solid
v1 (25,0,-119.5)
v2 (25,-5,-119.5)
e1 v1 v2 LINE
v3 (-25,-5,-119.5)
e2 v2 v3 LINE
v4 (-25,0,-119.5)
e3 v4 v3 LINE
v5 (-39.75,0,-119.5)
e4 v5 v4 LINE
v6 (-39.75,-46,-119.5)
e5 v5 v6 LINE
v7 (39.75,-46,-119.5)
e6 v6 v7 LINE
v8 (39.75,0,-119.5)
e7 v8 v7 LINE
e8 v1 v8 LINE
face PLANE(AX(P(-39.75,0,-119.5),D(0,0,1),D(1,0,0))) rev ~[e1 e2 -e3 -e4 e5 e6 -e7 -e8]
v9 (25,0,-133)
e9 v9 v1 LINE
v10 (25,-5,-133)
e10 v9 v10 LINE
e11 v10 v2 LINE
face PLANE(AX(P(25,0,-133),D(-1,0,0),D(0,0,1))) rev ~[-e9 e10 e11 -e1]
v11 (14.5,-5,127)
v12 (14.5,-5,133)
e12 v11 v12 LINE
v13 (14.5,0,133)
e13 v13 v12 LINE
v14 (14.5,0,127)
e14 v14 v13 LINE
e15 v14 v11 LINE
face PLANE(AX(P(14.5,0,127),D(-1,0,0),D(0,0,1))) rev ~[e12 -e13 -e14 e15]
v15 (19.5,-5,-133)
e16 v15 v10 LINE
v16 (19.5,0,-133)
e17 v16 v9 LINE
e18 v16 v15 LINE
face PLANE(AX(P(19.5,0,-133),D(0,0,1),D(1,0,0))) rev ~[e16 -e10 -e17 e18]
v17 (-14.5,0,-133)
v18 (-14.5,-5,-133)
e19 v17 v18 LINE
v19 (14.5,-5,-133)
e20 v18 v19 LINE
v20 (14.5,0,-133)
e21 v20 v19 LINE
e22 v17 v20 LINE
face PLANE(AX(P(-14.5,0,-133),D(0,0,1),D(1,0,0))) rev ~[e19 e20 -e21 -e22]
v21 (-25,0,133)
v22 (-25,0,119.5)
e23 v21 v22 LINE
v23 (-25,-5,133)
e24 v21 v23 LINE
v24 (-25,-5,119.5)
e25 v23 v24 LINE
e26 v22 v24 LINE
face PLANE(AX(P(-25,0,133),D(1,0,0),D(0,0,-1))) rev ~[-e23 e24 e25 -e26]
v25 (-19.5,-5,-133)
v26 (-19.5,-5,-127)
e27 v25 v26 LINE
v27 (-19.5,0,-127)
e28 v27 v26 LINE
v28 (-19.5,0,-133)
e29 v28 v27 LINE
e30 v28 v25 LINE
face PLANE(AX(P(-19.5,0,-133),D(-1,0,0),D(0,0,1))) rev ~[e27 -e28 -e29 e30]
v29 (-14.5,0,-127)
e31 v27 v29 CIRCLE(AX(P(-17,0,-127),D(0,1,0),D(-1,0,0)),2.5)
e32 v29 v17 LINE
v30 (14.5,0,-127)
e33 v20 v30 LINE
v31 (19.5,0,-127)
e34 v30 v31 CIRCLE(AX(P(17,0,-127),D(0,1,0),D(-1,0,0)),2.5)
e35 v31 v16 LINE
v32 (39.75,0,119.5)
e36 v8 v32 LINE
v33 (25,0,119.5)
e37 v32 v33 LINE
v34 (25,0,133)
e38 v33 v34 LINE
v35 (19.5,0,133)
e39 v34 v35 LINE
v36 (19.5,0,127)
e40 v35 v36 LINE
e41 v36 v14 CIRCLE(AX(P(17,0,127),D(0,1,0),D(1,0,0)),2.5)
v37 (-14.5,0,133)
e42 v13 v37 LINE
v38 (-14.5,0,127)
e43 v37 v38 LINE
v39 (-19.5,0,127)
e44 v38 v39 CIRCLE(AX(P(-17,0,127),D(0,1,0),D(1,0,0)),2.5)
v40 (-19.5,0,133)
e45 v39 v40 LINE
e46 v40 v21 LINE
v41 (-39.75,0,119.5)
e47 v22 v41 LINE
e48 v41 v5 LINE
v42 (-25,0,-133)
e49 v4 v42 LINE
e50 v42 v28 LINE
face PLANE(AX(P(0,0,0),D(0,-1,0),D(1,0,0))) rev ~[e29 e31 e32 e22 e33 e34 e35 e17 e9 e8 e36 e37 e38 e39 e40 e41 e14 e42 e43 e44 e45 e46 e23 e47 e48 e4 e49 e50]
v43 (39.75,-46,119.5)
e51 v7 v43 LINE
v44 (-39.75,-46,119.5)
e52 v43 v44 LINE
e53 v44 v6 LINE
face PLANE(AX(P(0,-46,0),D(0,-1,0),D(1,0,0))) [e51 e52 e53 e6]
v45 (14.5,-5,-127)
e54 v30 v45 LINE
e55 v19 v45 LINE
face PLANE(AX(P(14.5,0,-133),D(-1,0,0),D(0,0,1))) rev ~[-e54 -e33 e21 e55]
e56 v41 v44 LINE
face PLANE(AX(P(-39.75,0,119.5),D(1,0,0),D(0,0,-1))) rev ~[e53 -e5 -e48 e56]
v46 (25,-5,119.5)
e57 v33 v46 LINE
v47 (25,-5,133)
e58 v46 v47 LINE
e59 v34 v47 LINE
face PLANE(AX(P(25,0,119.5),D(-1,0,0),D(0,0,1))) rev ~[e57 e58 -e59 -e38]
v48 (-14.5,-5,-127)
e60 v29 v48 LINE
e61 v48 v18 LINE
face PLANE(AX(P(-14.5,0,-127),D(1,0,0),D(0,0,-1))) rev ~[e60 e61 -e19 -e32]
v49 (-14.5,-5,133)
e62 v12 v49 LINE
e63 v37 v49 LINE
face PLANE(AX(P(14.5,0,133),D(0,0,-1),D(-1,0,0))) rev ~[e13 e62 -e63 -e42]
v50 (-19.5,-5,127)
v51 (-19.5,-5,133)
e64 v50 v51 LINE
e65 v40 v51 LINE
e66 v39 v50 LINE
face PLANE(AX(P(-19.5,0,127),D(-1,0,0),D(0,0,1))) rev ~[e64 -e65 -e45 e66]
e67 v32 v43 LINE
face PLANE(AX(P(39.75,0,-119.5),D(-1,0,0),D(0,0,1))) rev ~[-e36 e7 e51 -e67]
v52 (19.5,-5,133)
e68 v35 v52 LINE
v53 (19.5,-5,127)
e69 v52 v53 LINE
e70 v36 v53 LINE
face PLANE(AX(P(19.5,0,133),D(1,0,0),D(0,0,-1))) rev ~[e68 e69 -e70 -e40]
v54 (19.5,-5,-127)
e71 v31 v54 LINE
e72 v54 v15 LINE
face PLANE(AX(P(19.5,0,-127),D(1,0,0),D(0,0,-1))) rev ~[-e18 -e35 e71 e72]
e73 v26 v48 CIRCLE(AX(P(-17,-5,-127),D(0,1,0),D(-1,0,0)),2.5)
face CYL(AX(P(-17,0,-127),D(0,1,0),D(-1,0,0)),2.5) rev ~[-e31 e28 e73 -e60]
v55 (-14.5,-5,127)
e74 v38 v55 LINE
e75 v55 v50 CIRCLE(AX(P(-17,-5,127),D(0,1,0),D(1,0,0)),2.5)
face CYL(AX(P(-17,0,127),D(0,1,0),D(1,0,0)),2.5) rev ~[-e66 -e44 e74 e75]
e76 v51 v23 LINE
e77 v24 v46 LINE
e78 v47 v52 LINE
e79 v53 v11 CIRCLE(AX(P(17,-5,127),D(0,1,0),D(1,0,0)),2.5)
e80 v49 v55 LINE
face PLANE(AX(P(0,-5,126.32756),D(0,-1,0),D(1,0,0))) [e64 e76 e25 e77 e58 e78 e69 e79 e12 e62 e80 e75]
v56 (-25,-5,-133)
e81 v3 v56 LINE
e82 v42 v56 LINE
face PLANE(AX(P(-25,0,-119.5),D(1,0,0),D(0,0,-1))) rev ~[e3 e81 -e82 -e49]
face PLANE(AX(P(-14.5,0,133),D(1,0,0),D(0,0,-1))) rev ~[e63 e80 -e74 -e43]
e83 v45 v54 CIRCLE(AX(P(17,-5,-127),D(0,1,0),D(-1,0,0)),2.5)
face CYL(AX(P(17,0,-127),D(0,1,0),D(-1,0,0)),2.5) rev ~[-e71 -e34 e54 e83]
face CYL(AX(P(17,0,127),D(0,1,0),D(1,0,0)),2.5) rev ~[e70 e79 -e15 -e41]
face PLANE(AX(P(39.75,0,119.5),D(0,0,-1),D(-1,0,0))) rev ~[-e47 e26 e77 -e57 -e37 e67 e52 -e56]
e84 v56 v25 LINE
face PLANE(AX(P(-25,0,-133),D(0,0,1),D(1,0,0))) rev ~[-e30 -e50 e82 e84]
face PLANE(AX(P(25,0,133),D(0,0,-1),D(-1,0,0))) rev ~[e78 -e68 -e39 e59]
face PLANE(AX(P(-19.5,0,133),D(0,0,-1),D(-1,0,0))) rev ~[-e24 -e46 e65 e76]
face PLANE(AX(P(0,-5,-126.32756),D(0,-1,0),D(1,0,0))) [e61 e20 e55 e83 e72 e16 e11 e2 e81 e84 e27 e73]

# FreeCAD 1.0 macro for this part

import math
import FreeCAD as App
import Part
import Sketcher
from FreeCAD import Vector
Q = App.Units.Quantity

doc = App.newDocument("Part")
params = doc.addObject("Spreadsheet::Sheet", "Params")
for row, (alias, value) in enumerate([
    ("sketch1_radius", "2.5 mm"),
    ("sketch1_width", "29 mm"),
    ("sketch1_width2", "50 mm"),
    ("sketch1_height", "6 mm"),
    ("sketch1_height2", "13.5 mm"),
    ("pad1_length", "5 mm"),
    ("sketch2_radius", "2.5 mm"),
    ("sketch2_width", "50 mm"),
    ("sketch2_width2", "29 mm"),
    ("sketch2_height", "6 mm"),
    ("sketch2_height2", "13.5 mm"),
    ("pad2_length", "5 mm"),
    ("sketch3_height", "239 mm"),
    ("sketch3_width", "79.5 mm"),
    ("pad3_length", "46 mm"),
], start=1):
    params.set(f"A{row}", alias)
    params.set(f"B{row}", "=" + value)
    params.setAlias(f"B{row}", alias)

body = doc.addObject("PartDesign::Body", "Body")

# Sketch on XZ plane
sketch1 = body.newObject("Sketcher::SketchObject", "Sketch")
sketch1.AttachmentSupport = (doc.getObject("XZ_Plane"), [""])
sketch1.MapMode = "FlatFace"
sketch1.addGeometry([
    Part.LineSegment(Vector(25, 119.5, 0), Vector(25, 133, 0)),  # 0
    Part.LineSegment(Vector(25, 133, 0), Vector(19.5, 133, 0)),  # 1
    Part.LineSegment(Vector(19.5, 133, 0), Vector(19.5, 127, 0)),  # 2
    Part.ArcOfCircle(Part.Circle(Vector(17, 127, 0), Vector(0, 0, 1), 2.5), math.radians(180), math.radians(360)),  # 3
    Part.LineSegment(Vector(14.5, 127, 0), Vector(14.5, 133, 0)),  # 4
    Part.LineSegment(Vector(14.5, 133, 0), Vector(-14.5, 133, 0)),  # 5
    Part.LineSegment(Vector(-14.5, 133, 0), Vector(-14.5, 127, 0)),  # 6
    Part.ArcOfCircle(Part.Circle(Vector(-17, 127, 0), Vector(0, 0, 1), 2.5), math.radians(180), math.radians(360)),  # 7
    Part.LineSegment(Vector(-19.5, 127, 0), Vector(-19.5, 133, 0)),  # 8
    Part.LineSegment(Vector(-19.5, 133, 0), Vector(-25, 133, 0)),  # 9
    Part.LineSegment(Vector(-25, 133, 0), Vector(-25, 119.5, 0)),  # 10
    Part.LineSegment(Vector(-25, 119.5, 0), Vector(25, 119.5, 0)),  # 11
], False)
sketch1.addConstraint([
    Sketcher.Constraint("Coincident", 0, 2, 1, 1),
    Sketcher.Constraint("Coincident", 1, 2, 2, 1),
    Sketcher.Constraint("Tangent", 2, 2, 3, 2),
    Sketcher.Constraint("Tangent", 3, 1, 4, 1),
    Sketcher.Constraint("Coincident", 4, 2, 5, 1),
    Sketcher.Constraint("Coincident", 5, 2, 6, 1),
    Sketcher.Constraint("Tangent", 6, 2, 7, 2),
    Sketcher.Constraint("Tangent", 7, 1, 8, 1),
    Sketcher.Constraint("Coincident", 8, 2, 9, 1),
    Sketcher.Constraint("Coincident", 9, 2, 10, 1),
    Sketcher.Constraint("Coincident", 10, 2, 11, 1),
    Sketcher.Constraint("Coincident", 11, 2, 0, 1),
    Sketcher.Constraint("Vertical", 0),
    Sketcher.Constraint("Horizontal", 1),
    Sketcher.Constraint("Vertical", 2),
    Sketcher.Constraint("Vertical", 4),
    Sketcher.Constraint("Horizontal", 5),
    Sketcher.Constraint("Vertical", 6),
    Sketcher.Constraint("Vertical", 8),
    Sketcher.Constraint("Horizontal", 9),
    Sketcher.Constraint("Vertical", 10),
    Sketcher.Constraint("Horizontal", 11),
    Sketcher.Constraint("Equal", 3, 7),
    Sketcher.Constraint("Symmetric", 3, 3, 7, 3, -2),
    Sketcher.Constraint("Symmetric", 0, 2, 9, 2, -2),
    Sketcher.Constraint("Horizontal", 1, 2, 4, 2),
    Sketcher.Constraint("Radius", 3, Q("2.5 mm")),
    Sketcher.Constraint("DistanceX", 5, 2, 5, 1, Q("29 mm")),
    Sketcher.Constraint("DistanceX", 11, 1, 11, 2, Q("50 mm")),
    Sketcher.Constraint("DistanceY", 2, 2, 2, 1, Q("6 mm")),
    Sketcher.Constraint("DistanceY", 0, 1, 0, 2, Q("13.5 mm")),
    Sketcher.Constraint("DistanceY", -1, 1, 3, 3, Q("127 mm")),
])
sketch1.setExpression("Constraints[26]", "Params.sketch1_radius")
sketch1.setExpression("Constraints[27]", "Params.sketch1_width")
sketch1.setExpression("Constraints[28]", "Params.sketch1_width2")
sketch1.setExpression("Constraints[29]", "Params.sketch1_height")
sketch1.setExpression("Constraints[30]", "Params.sketch1_height2")
pad1 = body.newObject("PartDesign::Pad", "Pad")
pad1.Profile = sketch1
pad1.setExpression("Length", "Params.pad1_length")
body2 = doc.addObject("PartDesign::Body", "Body001")

# Sketch on XZ plane
sketch2 = body2.newObject("Sketcher::SketchObject", "Sketch001")
sketch2.AttachmentSupport = (doc.getObject("XZ_Plane001"), [""])
sketch2.MapMode = "FlatFace"
sketch2.addGeometry([
    Part.LineSegment(Vector(25, -133, 0), Vector(25, -119.5, 0)),  # 0
    Part.LineSegment(Vector(25, -119.5, 0), Vector(-25, -119.5, 0)),  # 1
    Part.LineSegment(Vector(-25, -119.5, 0), Vector(-25, -133, 0)),  # 2
    Part.LineSegment(Vector(-25, -133, 0), Vector(-19.5, -133, 0)),  # 3
    Part.LineSegment(Vector(-19.5, -133, 0), Vector(-19.5, -127, 0)),  # 4
    Part.ArcOfCircle(Part.Circle(Vector(-17, -127, 0), Vector(0, 0, 1), 2.5), math.radians(0), math.radians(180)),  # 5
    Part.LineSegment(Vector(-14.5, -127, 0), Vector(-14.5, -133, 0)),  # 6
    Part.LineSegment(Vector(-14.5, -133, 0), Vector(14.5, -133, 0)),  # 7
    Part.LineSegment(Vector(14.5, -133, 0), Vector(14.5, -127, 0)),  # 8
    Part.ArcOfCircle(Part.Circle(Vector(17, -127, 0), Vector(0, 0, 1), 2.5), math.radians(0), math.radians(180)),  # 9
    Part.LineSegment(Vector(19.5, -127, 0), Vector(19.5, -133, 0)),  # 10
    Part.LineSegment(Vector(19.5, -133, 0), Vector(25, -133, 0)),  # 11
], False)
sketch2.addConstraint([
    Sketcher.Constraint("Coincident", 0, 2, 1, 1),
    Sketcher.Constraint("Coincident", 1, 2, 2, 1),
    Sketcher.Constraint("Coincident", 2, 2, 3, 1),
    Sketcher.Constraint("Coincident", 3, 2, 4, 1),
    Sketcher.Constraint("Tangent", 4, 2, 5, 2),
    Sketcher.Constraint("Tangent", 5, 1, 6, 1),
    Sketcher.Constraint("Coincident", 6, 2, 7, 1),
    Sketcher.Constraint("Coincident", 7, 2, 8, 1),
    Sketcher.Constraint("Tangent", 8, 2, 9, 2),
    Sketcher.Constraint("Tangent", 9, 1, 10, 1),
    Sketcher.Constraint("Coincident", 10, 2, 11, 1),
    Sketcher.Constraint("Coincident", 11, 2, 0, 1),
    Sketcher.Constraint("Vertical", 0),
    Sketcher.Constraint("Horizontal", 1),
    Sketcher.Constraint("Vertical", 2),
    Sketcher.Constraint("Horizontal", 3),
    Sketcher.Constraint("Vertical", 4),
    Sketcher.Constraint("Vertical", 6),
    Sketcher.Constraint("Horizontal", 7),
    Sketcher.Constraint("Vertical", 8),
    Sketcher.Constraint("Vertical", 10),
    Sketcher.Constraint("Horizontal", 11),
    Sketcher.Constraint("Equal", 5, 9),
    Sketcher.Constraint("Symmetric", 5, 3, 9, 3, -2),
    Sketcher.Constraint("Symmetric", 2, 2, 11, 2, -2),
    Sketcher.Constraint("Horizontal", 3, 2, 6, 2),
    Sketcher.Constraint("Radius", 5, Q("2.5 mm")),
    Sketcher.Constraint("DistanceX", 1, 2, 1, 1, Q("50 mm")),
    Sketcher.Constraint("DistanceX", 7, 1, 7, 2, Q("29 mm")),
    Sketcher.Constraint("DistanceY", 4, 1, 4, 2, Q("6 mm")),
    Sketcher.Constraint("DistanceY", 0, 1, 0, 2, Q("13.5 mm")),
    Sketcher.Constraint("DistanceY", 5, 3, -1, 1, Q("127 mm")),
])
sketch2.setExpression("Constraints[26]", "Params.sketch2_radius")
sketch2.setExpression("Constraints[27]", "Params.sketch2_width")
sketch2.setExpression("Constraints[28]", "Params.sketch2_width2")
sketch2.setExpression("Constraints[29]", "Params.sketch2_height")
sketch2.setExpression("Constraints[30]", "Params.sketch2_height2")
pad2 = body2.newObject("PartDesign::Pad", "Pad001")
pad2.Profile = sketch2
pad2.setExpression("Length", "Params.pad2_length")
body.AllowCompound = True
doc.recompute()

boolean = body.newObject("PartDesign::Boolean", "Boolean")
boolean.Type = "Fuse"
boolean.addObjects([body2])

# Sketch on XZ plane
sketch3 = body.newObject("Sketcher::SketchObject", "Sketch002")
sketch3.AttachmentSupport = (doc.getObject("XZ_Plane"), [""])
sketch3.MapMode = "FlatFace"
sketch3.addGeometry([
    Part.LineSegment(Vector(39.75, -119.5, 0), Vector(39.75, 119.5, 0)),
    Part.LineSegment(Vector(39.75, 119.5, 0), Vector(-39.75, 119.5, 0)),
    Part.LineSegment(Vector(-39.75, 119.5, 0), Vector(-39.75, -119.5, 0)),
    Part.LineSegment(Vector(-39.75, -119.5, 0), Vector(39.75, -119.5, 0)),
], False)
sketch3.addConstraint([
    Sketcher.Constraint("Coincident", 0, 2, 1, 1),
    Sketcher.Constraint("Coincident", 1, 2, 2, 1),
    Sketcher.Constraint("Coincident", 2, 2, 3, 1),
    Sketcher.Constraint("Coincident", 3, 2, 0, 1),
    Sketcher.Constraint("Vertical", 0),
    Sketcher.Constraint("Horizontal", 1),
    Sketcher.Constraint("Vertical", 2),
    Sketcher.Constraint("Horizontal", 3),
    Sketcher.Constraint("Symmetric", 0, 2, 2, 2, -1, 1),
    Sketcher.Constraint("DistanceY", 0, 1, 0, 2, Q("239 mm")),
    Sketcher.Constraint("DistanceX", 1, 2, 1, 1, Q("79.5 mm")),
])
sketch3.setExpression("Constraints[9]", "Params.sketch3_height")
sketch3.setExpression("Constraints[10]", "Params.sketch3_width")
pad3 = body.newObject("PartDesign::Pad", "Pad002")
pad3.Profile = sketch3
pad3.setExpression("Length", "Params.pad3_length")

doc.recompute()
